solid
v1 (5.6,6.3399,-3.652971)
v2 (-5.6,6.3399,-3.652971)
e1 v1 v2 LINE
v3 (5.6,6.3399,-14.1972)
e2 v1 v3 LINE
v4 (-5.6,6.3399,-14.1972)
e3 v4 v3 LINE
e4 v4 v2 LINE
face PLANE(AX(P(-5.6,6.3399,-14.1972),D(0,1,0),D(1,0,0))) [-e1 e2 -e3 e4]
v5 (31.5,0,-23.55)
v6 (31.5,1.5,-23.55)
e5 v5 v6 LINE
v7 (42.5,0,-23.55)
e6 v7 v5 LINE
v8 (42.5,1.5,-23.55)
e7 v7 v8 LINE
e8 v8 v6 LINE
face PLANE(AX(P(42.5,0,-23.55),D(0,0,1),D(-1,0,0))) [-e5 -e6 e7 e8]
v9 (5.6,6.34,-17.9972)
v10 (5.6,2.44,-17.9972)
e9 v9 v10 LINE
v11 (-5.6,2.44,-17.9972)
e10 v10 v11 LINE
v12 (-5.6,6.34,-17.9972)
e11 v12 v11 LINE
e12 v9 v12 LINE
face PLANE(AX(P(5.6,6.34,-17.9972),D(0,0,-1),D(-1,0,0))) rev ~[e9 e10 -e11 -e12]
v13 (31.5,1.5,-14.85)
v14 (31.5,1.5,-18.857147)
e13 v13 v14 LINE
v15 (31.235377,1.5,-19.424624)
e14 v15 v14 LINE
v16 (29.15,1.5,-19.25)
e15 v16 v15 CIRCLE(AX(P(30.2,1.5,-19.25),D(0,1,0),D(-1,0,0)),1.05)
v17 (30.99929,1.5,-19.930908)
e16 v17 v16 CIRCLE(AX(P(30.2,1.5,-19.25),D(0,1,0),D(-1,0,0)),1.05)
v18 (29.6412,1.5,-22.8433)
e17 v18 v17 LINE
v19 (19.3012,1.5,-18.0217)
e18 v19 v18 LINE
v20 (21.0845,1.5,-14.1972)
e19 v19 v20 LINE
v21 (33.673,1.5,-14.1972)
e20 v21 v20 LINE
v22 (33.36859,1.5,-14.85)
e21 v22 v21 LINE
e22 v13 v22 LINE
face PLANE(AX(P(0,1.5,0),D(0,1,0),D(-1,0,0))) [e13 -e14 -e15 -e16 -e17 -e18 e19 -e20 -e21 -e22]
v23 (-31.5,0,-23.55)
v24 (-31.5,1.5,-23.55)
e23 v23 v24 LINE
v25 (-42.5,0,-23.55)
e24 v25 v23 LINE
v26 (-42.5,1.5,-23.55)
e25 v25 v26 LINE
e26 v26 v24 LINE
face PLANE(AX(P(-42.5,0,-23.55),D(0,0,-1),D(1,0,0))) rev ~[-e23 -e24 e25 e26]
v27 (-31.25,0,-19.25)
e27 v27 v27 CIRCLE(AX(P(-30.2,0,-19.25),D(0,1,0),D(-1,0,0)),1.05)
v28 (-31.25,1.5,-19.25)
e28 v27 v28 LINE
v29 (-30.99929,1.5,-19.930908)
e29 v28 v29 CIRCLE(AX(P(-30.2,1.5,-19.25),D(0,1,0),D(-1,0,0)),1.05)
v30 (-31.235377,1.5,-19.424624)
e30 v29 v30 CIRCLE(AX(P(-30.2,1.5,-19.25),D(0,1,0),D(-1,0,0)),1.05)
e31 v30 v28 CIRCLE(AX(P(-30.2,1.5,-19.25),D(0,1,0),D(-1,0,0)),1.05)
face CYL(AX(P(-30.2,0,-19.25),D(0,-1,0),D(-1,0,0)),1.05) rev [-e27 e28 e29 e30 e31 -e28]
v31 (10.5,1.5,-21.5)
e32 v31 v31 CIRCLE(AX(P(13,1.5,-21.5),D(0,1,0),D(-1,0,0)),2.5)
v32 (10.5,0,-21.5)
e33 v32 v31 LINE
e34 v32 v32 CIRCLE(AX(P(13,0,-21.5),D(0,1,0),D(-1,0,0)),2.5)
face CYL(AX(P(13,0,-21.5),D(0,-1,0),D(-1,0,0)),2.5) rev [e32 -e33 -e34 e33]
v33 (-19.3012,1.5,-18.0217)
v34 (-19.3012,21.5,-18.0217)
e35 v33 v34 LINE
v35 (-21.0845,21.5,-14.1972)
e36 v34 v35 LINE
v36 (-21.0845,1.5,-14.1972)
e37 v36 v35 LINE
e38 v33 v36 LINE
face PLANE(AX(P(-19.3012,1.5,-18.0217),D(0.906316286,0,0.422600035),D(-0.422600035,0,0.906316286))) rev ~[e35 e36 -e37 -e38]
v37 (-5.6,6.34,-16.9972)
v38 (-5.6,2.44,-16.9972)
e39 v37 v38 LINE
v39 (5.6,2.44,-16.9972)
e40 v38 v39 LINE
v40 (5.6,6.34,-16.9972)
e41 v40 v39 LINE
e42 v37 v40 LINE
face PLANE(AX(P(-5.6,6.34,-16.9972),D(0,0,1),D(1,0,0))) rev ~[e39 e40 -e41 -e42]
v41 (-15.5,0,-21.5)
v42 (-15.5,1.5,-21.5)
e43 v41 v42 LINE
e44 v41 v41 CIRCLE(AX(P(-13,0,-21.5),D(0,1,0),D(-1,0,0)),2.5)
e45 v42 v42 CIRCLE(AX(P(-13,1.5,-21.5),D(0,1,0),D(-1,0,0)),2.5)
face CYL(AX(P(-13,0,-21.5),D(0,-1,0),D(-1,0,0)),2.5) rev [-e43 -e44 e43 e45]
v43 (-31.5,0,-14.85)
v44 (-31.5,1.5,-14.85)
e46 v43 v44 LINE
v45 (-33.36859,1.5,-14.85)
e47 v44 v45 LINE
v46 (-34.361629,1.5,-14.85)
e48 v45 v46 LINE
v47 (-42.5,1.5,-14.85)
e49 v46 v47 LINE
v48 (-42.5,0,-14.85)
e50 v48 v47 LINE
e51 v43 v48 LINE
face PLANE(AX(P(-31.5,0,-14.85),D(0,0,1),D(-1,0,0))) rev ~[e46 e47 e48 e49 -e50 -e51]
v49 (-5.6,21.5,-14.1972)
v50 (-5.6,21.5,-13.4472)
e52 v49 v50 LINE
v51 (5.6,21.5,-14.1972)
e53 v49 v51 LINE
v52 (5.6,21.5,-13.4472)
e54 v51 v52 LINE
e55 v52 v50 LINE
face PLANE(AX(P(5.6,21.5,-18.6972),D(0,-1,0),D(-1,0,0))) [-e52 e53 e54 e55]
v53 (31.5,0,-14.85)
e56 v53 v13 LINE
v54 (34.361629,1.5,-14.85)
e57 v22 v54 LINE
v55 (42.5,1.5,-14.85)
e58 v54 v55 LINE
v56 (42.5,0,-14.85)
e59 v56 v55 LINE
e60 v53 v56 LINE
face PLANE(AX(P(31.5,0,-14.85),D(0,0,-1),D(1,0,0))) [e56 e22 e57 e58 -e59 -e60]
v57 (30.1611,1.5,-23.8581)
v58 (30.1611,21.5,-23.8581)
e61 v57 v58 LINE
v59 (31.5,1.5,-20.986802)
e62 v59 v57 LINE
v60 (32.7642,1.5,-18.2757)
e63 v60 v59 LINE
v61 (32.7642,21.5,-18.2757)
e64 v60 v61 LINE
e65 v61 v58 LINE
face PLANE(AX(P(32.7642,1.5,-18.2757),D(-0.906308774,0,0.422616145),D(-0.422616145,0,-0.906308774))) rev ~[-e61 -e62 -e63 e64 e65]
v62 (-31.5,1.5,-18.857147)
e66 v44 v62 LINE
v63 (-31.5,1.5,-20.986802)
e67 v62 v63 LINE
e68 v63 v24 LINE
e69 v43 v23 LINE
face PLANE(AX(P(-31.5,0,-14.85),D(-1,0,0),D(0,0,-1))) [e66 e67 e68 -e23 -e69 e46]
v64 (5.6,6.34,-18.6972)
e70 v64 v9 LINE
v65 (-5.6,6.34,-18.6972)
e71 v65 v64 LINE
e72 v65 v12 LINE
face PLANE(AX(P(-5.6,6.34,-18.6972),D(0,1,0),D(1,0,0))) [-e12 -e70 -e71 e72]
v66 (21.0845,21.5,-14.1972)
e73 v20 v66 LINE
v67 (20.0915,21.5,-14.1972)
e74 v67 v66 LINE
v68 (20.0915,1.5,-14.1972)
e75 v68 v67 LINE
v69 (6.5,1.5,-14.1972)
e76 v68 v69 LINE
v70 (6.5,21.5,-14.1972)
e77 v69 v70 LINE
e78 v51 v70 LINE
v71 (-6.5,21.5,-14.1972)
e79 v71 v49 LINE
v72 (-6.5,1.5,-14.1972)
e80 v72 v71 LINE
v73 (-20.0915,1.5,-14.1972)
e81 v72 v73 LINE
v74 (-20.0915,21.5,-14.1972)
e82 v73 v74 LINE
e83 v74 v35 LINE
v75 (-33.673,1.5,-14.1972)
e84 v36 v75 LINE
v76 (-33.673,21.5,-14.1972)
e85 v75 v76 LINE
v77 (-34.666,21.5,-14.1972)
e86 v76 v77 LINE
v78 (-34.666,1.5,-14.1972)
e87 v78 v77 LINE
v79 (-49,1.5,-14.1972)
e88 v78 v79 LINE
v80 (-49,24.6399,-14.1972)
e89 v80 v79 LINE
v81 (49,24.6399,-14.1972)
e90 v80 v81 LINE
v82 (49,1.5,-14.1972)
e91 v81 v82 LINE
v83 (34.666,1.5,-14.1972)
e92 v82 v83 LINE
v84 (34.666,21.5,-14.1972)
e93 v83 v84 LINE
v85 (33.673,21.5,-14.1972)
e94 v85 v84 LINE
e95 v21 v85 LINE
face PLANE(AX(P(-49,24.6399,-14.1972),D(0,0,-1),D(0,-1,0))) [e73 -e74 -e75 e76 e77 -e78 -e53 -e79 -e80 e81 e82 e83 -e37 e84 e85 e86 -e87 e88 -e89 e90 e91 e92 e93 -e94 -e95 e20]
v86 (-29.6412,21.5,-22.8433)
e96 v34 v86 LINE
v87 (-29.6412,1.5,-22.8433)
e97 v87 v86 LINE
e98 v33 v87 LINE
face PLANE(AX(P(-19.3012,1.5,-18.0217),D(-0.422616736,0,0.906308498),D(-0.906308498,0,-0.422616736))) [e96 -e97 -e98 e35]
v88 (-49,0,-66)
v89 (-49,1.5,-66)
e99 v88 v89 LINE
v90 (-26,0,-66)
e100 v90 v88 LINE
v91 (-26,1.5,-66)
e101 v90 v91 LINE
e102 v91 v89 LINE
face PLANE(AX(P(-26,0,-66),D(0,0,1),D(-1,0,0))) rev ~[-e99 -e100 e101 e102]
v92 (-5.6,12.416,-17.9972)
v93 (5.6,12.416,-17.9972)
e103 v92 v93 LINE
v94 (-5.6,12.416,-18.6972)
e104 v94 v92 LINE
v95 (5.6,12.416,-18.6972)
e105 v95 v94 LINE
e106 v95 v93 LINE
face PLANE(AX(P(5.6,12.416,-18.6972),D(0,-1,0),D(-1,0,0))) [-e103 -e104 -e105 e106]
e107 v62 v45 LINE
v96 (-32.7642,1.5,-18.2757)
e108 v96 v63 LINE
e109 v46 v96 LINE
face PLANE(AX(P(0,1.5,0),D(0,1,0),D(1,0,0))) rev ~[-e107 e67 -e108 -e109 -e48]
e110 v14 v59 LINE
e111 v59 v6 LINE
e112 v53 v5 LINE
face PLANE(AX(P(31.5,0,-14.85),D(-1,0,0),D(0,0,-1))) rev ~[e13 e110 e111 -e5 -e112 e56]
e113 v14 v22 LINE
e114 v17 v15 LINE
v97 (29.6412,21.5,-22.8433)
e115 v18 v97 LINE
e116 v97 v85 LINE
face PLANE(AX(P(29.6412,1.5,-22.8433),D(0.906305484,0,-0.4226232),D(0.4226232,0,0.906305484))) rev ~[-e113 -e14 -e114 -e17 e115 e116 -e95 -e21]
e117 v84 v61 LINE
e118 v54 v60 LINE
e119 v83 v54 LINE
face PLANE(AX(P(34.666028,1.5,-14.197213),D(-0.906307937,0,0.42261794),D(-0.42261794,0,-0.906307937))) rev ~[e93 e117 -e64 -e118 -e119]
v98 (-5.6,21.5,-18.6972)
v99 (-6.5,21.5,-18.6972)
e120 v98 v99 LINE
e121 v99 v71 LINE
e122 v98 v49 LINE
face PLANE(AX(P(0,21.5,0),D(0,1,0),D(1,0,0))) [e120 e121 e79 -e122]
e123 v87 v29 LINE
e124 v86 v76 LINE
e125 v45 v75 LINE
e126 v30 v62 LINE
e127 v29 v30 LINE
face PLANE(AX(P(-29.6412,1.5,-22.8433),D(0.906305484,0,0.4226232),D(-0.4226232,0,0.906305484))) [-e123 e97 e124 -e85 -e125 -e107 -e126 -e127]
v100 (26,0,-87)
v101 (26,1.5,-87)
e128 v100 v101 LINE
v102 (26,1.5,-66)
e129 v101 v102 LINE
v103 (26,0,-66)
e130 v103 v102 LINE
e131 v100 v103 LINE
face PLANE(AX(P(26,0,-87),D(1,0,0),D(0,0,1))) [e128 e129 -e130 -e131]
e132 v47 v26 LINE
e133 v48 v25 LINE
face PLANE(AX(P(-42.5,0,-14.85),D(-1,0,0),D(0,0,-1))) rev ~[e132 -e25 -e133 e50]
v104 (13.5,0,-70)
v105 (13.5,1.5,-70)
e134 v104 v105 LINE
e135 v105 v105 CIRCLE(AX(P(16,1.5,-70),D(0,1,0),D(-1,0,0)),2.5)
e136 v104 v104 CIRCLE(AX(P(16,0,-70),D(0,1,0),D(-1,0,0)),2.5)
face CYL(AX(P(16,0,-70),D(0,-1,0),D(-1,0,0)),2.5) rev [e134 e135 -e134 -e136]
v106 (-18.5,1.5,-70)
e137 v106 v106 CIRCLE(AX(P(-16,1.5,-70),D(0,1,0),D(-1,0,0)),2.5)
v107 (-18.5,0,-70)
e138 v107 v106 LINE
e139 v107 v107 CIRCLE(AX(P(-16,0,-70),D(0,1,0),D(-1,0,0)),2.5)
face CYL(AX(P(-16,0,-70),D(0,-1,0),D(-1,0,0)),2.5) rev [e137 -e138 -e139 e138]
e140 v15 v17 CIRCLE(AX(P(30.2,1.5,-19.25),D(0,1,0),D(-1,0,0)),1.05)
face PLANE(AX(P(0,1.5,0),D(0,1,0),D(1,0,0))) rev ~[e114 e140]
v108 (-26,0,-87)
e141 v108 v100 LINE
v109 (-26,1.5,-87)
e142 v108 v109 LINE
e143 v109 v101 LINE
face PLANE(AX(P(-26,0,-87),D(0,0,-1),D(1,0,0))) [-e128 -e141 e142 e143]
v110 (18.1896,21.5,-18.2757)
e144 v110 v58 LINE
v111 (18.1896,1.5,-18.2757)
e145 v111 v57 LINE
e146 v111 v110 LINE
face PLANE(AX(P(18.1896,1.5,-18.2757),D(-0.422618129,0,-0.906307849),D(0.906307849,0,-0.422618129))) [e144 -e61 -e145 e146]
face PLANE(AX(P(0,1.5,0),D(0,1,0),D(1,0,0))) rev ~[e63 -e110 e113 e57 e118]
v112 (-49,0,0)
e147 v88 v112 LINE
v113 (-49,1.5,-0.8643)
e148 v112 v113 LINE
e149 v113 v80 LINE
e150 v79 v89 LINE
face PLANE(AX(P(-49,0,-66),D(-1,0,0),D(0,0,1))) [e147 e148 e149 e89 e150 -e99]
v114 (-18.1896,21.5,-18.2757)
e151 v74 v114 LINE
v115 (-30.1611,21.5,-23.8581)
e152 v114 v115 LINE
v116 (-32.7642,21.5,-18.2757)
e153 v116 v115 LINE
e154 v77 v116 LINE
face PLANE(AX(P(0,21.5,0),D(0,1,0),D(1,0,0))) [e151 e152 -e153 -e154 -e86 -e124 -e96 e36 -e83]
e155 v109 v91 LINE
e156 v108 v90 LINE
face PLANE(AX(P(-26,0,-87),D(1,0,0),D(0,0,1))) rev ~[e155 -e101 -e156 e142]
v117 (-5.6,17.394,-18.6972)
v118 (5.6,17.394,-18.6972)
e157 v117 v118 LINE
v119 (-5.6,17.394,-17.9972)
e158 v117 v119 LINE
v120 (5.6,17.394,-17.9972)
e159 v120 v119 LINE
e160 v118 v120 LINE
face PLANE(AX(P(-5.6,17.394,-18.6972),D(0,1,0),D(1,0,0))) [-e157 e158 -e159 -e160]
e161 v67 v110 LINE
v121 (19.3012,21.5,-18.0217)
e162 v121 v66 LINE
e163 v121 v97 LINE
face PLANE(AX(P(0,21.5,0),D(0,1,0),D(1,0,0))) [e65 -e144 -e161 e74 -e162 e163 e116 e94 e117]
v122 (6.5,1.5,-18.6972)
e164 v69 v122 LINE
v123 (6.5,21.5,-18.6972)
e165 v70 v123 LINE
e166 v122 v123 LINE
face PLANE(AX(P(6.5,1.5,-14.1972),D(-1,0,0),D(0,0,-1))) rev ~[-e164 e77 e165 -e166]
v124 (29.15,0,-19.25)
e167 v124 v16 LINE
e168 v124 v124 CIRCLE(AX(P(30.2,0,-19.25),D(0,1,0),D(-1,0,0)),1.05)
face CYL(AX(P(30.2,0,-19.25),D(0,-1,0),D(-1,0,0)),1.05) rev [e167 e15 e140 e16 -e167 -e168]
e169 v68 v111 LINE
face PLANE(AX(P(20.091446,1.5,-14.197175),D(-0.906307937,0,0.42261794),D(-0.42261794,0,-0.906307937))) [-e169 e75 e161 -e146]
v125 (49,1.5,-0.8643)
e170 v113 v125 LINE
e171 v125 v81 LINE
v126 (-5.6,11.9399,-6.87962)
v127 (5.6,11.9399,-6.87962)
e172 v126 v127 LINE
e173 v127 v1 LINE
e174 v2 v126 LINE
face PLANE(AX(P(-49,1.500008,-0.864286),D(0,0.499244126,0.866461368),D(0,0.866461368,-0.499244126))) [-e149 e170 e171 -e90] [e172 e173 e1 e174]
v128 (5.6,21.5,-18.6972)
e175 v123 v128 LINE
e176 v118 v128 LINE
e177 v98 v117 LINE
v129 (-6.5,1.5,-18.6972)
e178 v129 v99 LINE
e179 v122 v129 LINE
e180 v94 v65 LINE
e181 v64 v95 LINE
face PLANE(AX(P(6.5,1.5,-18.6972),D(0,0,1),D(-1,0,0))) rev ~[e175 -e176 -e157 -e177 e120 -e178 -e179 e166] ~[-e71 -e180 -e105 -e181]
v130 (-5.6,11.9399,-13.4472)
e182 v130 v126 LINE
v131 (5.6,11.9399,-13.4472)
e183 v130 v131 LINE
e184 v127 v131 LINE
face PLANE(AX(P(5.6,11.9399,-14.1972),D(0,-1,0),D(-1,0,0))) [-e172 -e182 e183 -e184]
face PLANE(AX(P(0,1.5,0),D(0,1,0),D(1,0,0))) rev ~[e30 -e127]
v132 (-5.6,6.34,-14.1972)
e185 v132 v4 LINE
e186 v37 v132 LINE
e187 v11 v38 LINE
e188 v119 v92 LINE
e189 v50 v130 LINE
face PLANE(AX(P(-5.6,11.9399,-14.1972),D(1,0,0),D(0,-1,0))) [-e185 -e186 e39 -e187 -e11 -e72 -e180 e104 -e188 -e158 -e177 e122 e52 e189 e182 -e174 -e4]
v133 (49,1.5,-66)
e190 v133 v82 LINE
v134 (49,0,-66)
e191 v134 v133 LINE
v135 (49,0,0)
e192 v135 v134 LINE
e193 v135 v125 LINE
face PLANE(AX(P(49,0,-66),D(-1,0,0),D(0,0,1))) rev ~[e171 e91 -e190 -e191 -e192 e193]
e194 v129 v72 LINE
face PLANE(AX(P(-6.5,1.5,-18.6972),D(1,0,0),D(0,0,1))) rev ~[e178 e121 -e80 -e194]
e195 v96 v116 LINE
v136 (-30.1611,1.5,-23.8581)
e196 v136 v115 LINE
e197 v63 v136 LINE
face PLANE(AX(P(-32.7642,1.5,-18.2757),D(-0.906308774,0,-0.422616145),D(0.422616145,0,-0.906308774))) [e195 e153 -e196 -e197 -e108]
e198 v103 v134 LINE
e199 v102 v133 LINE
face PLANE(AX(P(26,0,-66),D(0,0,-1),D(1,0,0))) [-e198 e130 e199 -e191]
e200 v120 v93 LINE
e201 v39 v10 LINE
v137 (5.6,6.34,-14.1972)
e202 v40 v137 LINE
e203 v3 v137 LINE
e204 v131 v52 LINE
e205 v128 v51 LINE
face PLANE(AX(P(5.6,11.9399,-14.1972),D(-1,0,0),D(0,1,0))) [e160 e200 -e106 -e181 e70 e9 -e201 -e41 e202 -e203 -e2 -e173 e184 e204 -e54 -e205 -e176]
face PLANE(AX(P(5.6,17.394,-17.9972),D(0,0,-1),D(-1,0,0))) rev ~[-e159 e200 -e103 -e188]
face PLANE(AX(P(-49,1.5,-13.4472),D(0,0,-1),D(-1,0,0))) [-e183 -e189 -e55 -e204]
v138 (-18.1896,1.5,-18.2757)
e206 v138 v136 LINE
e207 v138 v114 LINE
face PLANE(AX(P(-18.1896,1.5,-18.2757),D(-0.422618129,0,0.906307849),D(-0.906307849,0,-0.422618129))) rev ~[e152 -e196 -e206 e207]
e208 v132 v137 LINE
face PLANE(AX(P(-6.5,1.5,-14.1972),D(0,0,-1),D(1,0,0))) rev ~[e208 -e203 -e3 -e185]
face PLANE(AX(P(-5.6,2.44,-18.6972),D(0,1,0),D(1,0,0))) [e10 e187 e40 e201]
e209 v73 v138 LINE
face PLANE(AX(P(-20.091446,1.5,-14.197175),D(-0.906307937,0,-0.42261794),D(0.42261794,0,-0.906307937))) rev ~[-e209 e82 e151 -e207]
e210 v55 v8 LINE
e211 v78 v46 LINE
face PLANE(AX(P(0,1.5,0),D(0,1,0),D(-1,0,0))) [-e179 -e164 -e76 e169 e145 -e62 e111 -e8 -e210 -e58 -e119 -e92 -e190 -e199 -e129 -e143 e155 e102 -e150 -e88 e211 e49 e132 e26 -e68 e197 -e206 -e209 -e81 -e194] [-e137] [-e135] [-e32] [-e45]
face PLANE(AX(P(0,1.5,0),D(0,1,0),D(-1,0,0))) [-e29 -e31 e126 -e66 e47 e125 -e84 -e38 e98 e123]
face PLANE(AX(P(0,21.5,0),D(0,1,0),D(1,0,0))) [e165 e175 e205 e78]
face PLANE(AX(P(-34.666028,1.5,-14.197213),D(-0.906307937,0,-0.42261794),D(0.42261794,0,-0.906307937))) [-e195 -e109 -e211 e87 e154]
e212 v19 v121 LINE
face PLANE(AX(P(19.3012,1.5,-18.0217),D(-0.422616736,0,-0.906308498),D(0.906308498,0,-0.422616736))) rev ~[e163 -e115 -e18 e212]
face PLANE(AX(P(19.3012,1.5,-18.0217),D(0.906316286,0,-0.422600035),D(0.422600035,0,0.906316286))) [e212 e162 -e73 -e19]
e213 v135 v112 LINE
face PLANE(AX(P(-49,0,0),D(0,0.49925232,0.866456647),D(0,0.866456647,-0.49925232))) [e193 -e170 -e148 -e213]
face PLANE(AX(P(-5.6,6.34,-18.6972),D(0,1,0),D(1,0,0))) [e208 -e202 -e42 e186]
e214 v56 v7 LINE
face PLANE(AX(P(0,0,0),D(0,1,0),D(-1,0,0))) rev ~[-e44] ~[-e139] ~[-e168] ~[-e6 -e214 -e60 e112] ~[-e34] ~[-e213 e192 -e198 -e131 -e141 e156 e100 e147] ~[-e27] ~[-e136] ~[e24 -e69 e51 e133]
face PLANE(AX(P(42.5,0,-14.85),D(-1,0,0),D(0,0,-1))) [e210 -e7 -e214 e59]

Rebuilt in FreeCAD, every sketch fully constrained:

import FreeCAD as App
import Part
import Sketcher

V = App.Vector
Q = App.Units.Quantity


def add_polygon(sketch, points):
    """Adds a closed chain of lines whose ends are joined by coincident constraints."""
    first, n = sketch.GeometryCount, len(points)
    for a, b in zip(points, points[1:] + points[:1]):
        sketch.addGeometry(Part.LineSegment(App.Vector(*a, 0), App.Vector(*b, 0)), False)
    for i in range(n):
        sketch.addConstraint(Sketcher.Constraint("Coincident", first + i, 2, first + (i + 1) % n, 1))

doc = App.newDocument("Part")
body = doc.addObject("PartDesign::Body", "Body")

# Sketch on XZ plane
sketch1 = body.newObject("Sketcher::SketchObject", "Sketch")
sketch1.AttachmentSupport = (doc.getObject("XZ_Plane"), [""])
sketch1.MapMode = "FlatFace"
add_polygon(sketch1, [(-26, -87), (-26, -66), (-49, -66), (-49, 0), (49, 0), (49, -66), (26, -66), (26, -87)])  # lines 0-7
sketch1.addGeometry(Part.Circle(V(16, -70, 0), V(0, 0, 1), 2.5), False)  # 8
sketch1.addGeometry(Part.Circle(V(-16, -70, 0), V(0, 0, 1), 2.5), False)  # 9
add_polygon(sketch1, [(31.5, -23.6), (42.5, -23.6), (42.5, -14.8), (31.5, -14.8)])  # lines 10-13
sketch1.addGeometry(Part.Circle(V(30.2, -19.2, 0), V(0, 0, 1), 1.1), False)  # 14
sketch1.addGeometry(Part.Circle(V(41.5, -7.5, 0), V(0, 0, 1), 1.8), False)  # 15
sketch1.addGeometry(Part.Circle(V(13, -21.5, 0), V(0, 0, 1), 2.5), False)  # 16
sketch1.addGeometry(Part.Circle(V(-13, -21.5, 0), V(0, 0, 1), 2.5), False)  # 17
sketch1.addGeometry(Part.Circle(V(-41.5, -7.5, 0), V(0, 0, 1), 1.8), False)  # 18
add_polygon(sketch1, [(-42.5, -14.8), (-42.5, -23.6), (-31.5, -23.6), (-31.5, -14.8)])  # lines 19-22
sketch1.addGeometry(Part.Circle(V(-30.2, -19.2, 0), V(0, 0, 1), 1.1), False)  # 23
sketch1.addConstraint(Sketcher.Constraint("Vertical", 0))
sketch1.addConstraint(Sketcher.Constraint("Horizontal", 1))
sketch1.addConstraint(Sketcher.Constraint("Vertical", 2))
sketch1.addConstraint(Sketcher.Constraint("Horizontal", 3))
sketch1.addConstraint(Sketcher.Constraint("Vertical", 4))
sketch1.addConstraint(Sketcher.Constraint("Horizontal", 5))
sketch1.addConstraint(Sketcher.Constraint("Vertical", 6))
sketch1.addConstraint(Sketcher.Constraint("Horizontal", 7))
sketch1.addConstraint(Sketcher.Constraint("Horizontal", 10))
sketch1.addConstraint(Sketcher.Constraint("Vertical", 11))
sketch1.addConstraint(Sketcher.Constraint("Horizontal", 12))
sketch1.addConstraint(Sketcher.Constraint("Vertical", 13))
sketch1.addConstraint(Sketcher.Constraint("Vertical", 19))
sketch1.addConstraint(Sketcher.Constraint("Horizontal", 20))
sketch1.addConstraint(Sketcher.Constraint("Vertical", 21))
sketch1.addConstraint(Sketcher.Constraint("Horizontal", 22))
sketch1.addConstraint(Sketcher.Constraint("Equal", 8, 9))
sketch1.addConstraint(Sketcher.Constraint("Equal", 9, 16))
sketch1.addConstraint(Sketcher.Constraint("Equal", 16, 17))
sketch1.addConstraint(Sketcher.Constraint("Equal", 15, 18))
sketch1.addConstraint(Sketcher.Constraint("Equal", 14, 23))
sketch1.addConstraint(Sketcher.Constraint("Symmetric", 2, 2, 3, 2, -1, 1))
sketch1.addConstraint(Sketcher.Constraint("Symmetric", 8, 3, 9, 3, -2))
sketch1.addConstraint(Sketcher.Constraint("Symmetric", 16, 3, 17, 3, -2))
sketch1.addConstraint(Sketcher.Constraint("Symmetric", 15, 3, 18, 3, -2))
sketch1.addConstraint(Sketcher.Constraint("Symmetric", 14, 3, 23, 3, -2))
sketch1.addConstraint(Sketcher.Constraint("Symmetric", 0, 2, 5, 2, -2))
sketch1.addConstraint(Sketcher.Constraint("Symmetric", 10, 2, 19, 2, -2))
sketch1.addConstraint(Sketcher.Constraint("Symmetric", 12, 2, 21, 2, -2))
sketch1.addConstraint(Sketcher.Constraint("Diameter", 8, Q("5 mm")))
sketch1.addConstraint(Sketcher.Constraint("Diameter", 14, Q("2.1 mm")))
sketch1.addConstraint(Sketcher.Constraint("Diameter", 15, Q("3.5 mm")))
sketch1.addConstraint(Sketcher.Constraint("DistanceX", 1, 2, 1, 1, Q("23 mm")))
sketch1.addConstraint(Sketcher.Constraint("DistanceX", 3, 1, 3, 2, Q("98 mm")))
sketch1.addConstraint(Sketcher.Constraint("DistanceX", 10, 1, 10, 2, Q("11 mm")))
sketch1.addConstraint(Sketcher.Constraint("DistanceY", 0, 1, 0, 2, Q("21 mm")))
sketch1.addConstraint(Sketcher.Constraint("DistanceY", 11, 1, 11, 2, Q("8.7 mm")))
sketch1.addConstraint(Sketcher.Constraint("DistanceX", -1, 1, 8, 3, Q("16 mm")))
sketch1.addConstraint(Sketcher.Constraint("DistanceY", 6, 2, -1, 1, Q("87 mm")))
sketch1.addConstraint(Sketcher.Constraint("DistanceY", 9, 3, 0, 2, Q("4 mm")))
sketch1.addConstraint(Sketcher.Constraint("DistanceX", 1, 2, 17, 3, Q("36 mm")))
sketch1.addConstraint(Sketcher.Constraint("DistanceX", 15, 3, 10, 2, Q("1 mm")))
sketch1.addConstraint(Sketcher.Constraint("DistanceY", 15, 3, -1, 1, Q("7.5 mm")))
sketch1.addConstraint(Sketcher.Constraint("DistanceX", 1, 2, 18, 3, Q("7.5 mm")))
sketch1.addConstraint(Sketcher.Constraint("DistanceY", 10, 2, 14, 3, Q("4.3 mm")))
sketch1.addConstraint(Sketcher.Constraint("DistanceX", 14, 3, 12, 2, Q("1.3 mm")))
sketch1.addConstraint(Sketcher.Constraint("DistanceY", 16, 3, 15, 3, Q("14 mm")))
sketch1.addConstraint(Sketcher.Constraint("DistanceY", 14, 3, -1, 1, Q("19.25 mm")))
pad1 = body.newObject("PartDesign::Pad", "Pad")
pad1.Profile = sketch1
pad1.Length = 1.5
pad1.Reversed = True

# Sketch on YZ plane
sketch2 = body.newObject("Sketcher::SketchObject", "Sketch001")
sketch2.AttachmentSupport = (doc.getObject("YZ_Plane"), [""])
sketch2.MapMode = "FlatFace"
sketch2.AttachmentOffset = App.Placement(V(0, 0, -49), App.Rotation())
add_polygon(sketch2, [(1.5, -0.9), (0, 0), (1.5, 0)])  # lines 0-2
sketch2.addConstraint(Sketcher.Constraint("Horizontal", 1))
sketch2.addConstraint(Sketcher.Constraint("Vertical", 2))
sketch2.addConstraint(Sketcher.Constraint("Coincident", 0, 2, -1, 1))
sketch2.addConstraint(Sketcher.Constraint("DistanceX", 1, 1, 1, 2, Q("1.5 mm")))
sketch2.addConstraint(Sketcher.Constraint("Angle", 0, Q("150.0495 deg")))
pocket1 = body.newObject("PartDesign::Pocket", "Pocket")
pocket1.Profile = sketch2
pocket1.Length = 98
pocket1.Reversed = True

# Sketch on YZ plane
sketch3 = body.newObject("Sketcher::SketchObject", "Sketch002")
sketch3.AttachmentSupport = (doc.getObject("YZ_Plane"), [""])
sketch3.MapMode = "FlatFace"
sketch3.AttachmentOffset = App.Placement(V(0, 0, -49), App.Rotation())
add_polygon(sketch3, [(25, -14), (0, -14), (0, 0)])  # lines 0-2
sketch3.addConstraint(Sketcher.Constraint("Horizontal", 0))
sketch3.addConstraint(Sketcher.Constraint("Vertical", 1))
sketch3.addConstraint(Sketcher.Constraint("Coincident", 1, 2, -1, 1))
sketch3.addConstraint(Sketcher.Constraint("DistanceX", 0, 2, 0, 1, Q("24.64 mm")))
sketch3.addConstraint(Sketcher.Constraint("Angle", 2, Q("-29.95 deg")))
pad2 = body.newObject("PartDesign::Pad", "Pad001")
pad2.Profile = sketch3
pad2.Length = 98

# Sketch on XY plane
sketch4 = body.newObject("Sketcher::SketchObject", "Sketch003")
sketch4.AttachmentSupport = (doc.getObject("XY_Plane"), [""])
sketch4.MapMode = "FlatFace"
sketch4.AttachmentOffset = App.Placement(V(0, 0, -14.1972), App.Rotation())
add_polygon(sketch4, [(-6, 12), (6, 12), (6, 6), (-6, 6)])  # lines 0-3
sketch4.addConstraint(Sketcher.Constraint("Horizontal", 0))
sketch4.addConstraint(Sketcher.Constraint("Vertical", 1))
sketch4.addConstraint(Sketcher.Constraint("Horizontal", 2))
sketch4.addConstraint(Sketcher.Constraint("Vertical", 3))
sketch4.addConstraint(Sketcher.Constraint("DistanceY", 1, 2, 1, 1, Q("5.6 mm")))
sketch4.addConstraint(Sketcher.Constraint("DistanceX", -1, 1, 0, 2, Q("5.6 mm")))
sketch4.addConstraint(Sketcher.Constraint("DistanceX", 2, 2, -1, 1, Q("5.6 mm")))
sketch4.addConstraint(Sketcher.Constraint("DistanceY", -1, 1, 0, 2, Q("11.94 mm")))
pocket2 = body.newObject("PartDesign::Pocket", "Pocket001")
pocket2.Profile = sketch4
pocket2.Length = 76.25
pocket2.Midplane = True

# Sketch on XY plane
sketch5 = body.newObject("Sketcher::SketchObject", "Sketch004")
sketch5.AttachmentSupport = (doc.getObject("XY_Plane"), [""])
sketch5.MapMode = "FlatFace"
sketch5.AttachmentOffset = App.Placement(V(0, 0, -14.1972), App.Rotation())
add_polygon(sketch5, [(-6, 21), (6, 21), (6, 6), (-6, 6)])  # lines 0-3
sketch5.addConstraint(Sketcher.Constraint("Horizontal", 0))
sketch5.addConstraint(Sketcher.Constraint("Vertical", 1))
sketch5.addConstraint(Sketcher.Constraint("Horizontal", 2))
sketch5.addConstraint(Sketcher.Constraint("Vertical", 3))
sketch5.addConstraint(Sketcher.Constraint("DistanceX", 0, 1, 0, 2, Q("11.2 mm")))
sketch5.addConstraint(Sketcher.Constraint("DistanceY", 1, 2, 1, 1, Q("14.8 mm")))
sketch5.addConstraint(Sketcher.Constraint("DistanceX", -1, 1, 0, 2, Q("5.6 mm")))
sketch5.addConstraint(Sketcher.Constraint("DistanceY", -1, 1, 0, 2, Q("21.14 mm")))
pocket3 = body.newObject("PartDesign::Pocket", "Pocket002")
pocket3.Profile = sketch5
pocket3.Length = 1.5
pocket3.Midplane = True

# Sketch on XZ plane
sketch6 = body.newObject("Sketcher::SketchObject", "Sketch005")
sketch6.AttachmentSupport = (doc.getObject("XZ_Plane"), [""])
sketch6.MapMode = "FlatFace"
sketch6.AttachmentOffset = App.Placement(V(0, 0, -1.5), App.Rotation())
add_polygon(sketch6, [(-6.5, -14.2), (6.5, -14.2), (6.5, -18.7), (-6.5, -18.7)])  # lines 0-3
sketch6.addConstraint(Sketcher.Constraint("Horizontal", 0))
sketch6.addConstraint(Sketcher.Constraint("Vertical", 1))
sketch6.addConstraint(Sketcher.Constraint("Horizontal", 2))
sketch6.addConstraint(Sketcher.Constraint("Vertical", 3))
sketch6.addConstraint(Sketcher.Constraint("DistanceX", 0, 1, 0, 2, Q("13 mm")))
sketch6.addConstraint(Sketcher.Constraint("DistanceY", 1, 2, 1, 1, Q("4.5 mm")))
sketch6.addConstraint(Sketcher.Constraint("DistanceX", -1, 1, 0, 2, Q("6.5 mm")))
sketch6.addConstraint(Sketcher.Constraint("DistanceY", 0, 2, -1, 1, Q("14.1972 mm")))
pad3 = body.newObject("PartDesign::Pad", "Pad002")
pad3.Profile = sketch6
pad3.Length = 20
pad3.Reversed = True

# Sketch on XY plane
sketch7 = body.newObject("Sketcher::SketchObject", "Sketch006")
sketch7.AttachmentSupport = (doc.getObject("XY_Plane"), [""])
sketch7.MapMode = "FlatFace"
sketch7.AttachmentOffset = App.Placement(V(0, 0, -18.6972), App.Rotation())
add_polygon(sketch7, [(-5.6, 12.4), (5.6, 12.4), (5.6, 6.3), (-5.6, 6.3)])  # lines 0-3
add_polygon(sketch7, [(-5.6, 21.5), (5.6, 21.5), (5.6, 17.4), (-5.6, 17.4)])  # lines 4-7
sketch7.addConstraint(Sketcher.Constraint("Horizontal", 0))
sketch7.addConstraint(Sketcher.Constraint("Vertical", 1))
sketch7.addConstraint(Sketcher.Constraint("Horizontal", 2))
sketch7.addConstraint(Sketcher.Constraint("Vertical", 3))
sketch7.addConstraint(Sketcher.Constraint("Horizontal", 4))
sketch7.addConstraint(Sketcher.Constraint("Vertical", 5))
sketch7.addConstraint(Sketcher.Constraint("Horizontal", 6))
sketch7.addConstraint(Sketcher.Constraint("Vertical", 7))
sketch7.addConstraint(Sketcher.Constraint("Vertical", 1, 2, 4, 2))
sketch7.addConstraint(Sketcher.Constraint("Vertical", 3, 2, 6, 2))
sketch7.addConstraint(Sketcher.Constraint("DistanceX", 0, 1, 0, 2, Q("11.2 mm")))
sketch7.addConstraint(Sketcher.Constraint("DistanceY", 1, 2, 1, 1, Q("6.076 mm")))
sketch7.addConstraint(Sketcher.Constraint("DistanceY", 0, 2, 5, 2, Q("4.978 mm")))
sketch7.addConstraint(Sketcher.Constraint("DistanceX", -1, 1, 0, 2, Q("5.6 mm")))
sketch7.addConstraint(Sketcher.Constraint("DistanceY", -1, 1, 4, 2, Q("21.5 mm")))
sketch7.addConstraint(Sketcher.Constraint("DistanceY", 5, 2, 5, 1, Q("4.106 mm")))
pocket4 = body.newObject("PartDesign::Pocket", "Pocket003")
pocket4.Profile = sketch7
pocket4.Length = 5.25
pocket4.Reversed = True

# Sketch on XZ plane
sketch8 = body.newObject("Sketcher::SketchObject", "Sketch007")
sketch8.AttachmentSupport = (doc.getObject("XZ_Plane"), [""])
sketch8.MapMode = "FlatFace"
sketch8.AttachmentOffset = App.Placement(V(0, 0, -17.394), App.Rotation())
add_polygon(sketch8, [(5.6, -18), (-5.6, -18), (-5.6, -14.2), (5.6, -14.2)])  # lines 0-3
sketch8.addConstraint(Sketcher.Constraint("Horizontal", 0))
sketch8.addConstraint(Sketcher.Constraint("Vertical", 1))
sketch8.addConstraint(Sketcher.Constraint("Horizontal", 2))
sketch8.addConstraint(Sketcher.Constraint("Vertical", 3))
sketch8.addConstraint(Sketcher.Constraint("DistanceX", 0, 2, 0, 1, Q("11.2 mm")))
sketch8.addConstraint(Sketcher.Constraint("DistanceY", 1, 1, 1, 2, Q("3.8 mm")))
sketch8.addConstraint(Sketcher.Constraint("DistanceX", 0, 2, -1, 1, Q("5.6 mm")))
sketch8.addConstraint(Sketcher.Constraint("DistanceY", 0, 2, -1, 1, Q("17.9972 mm")))
pocket5 = body.newObject("PartDesign::Pocket", "Pocket004")
pocket5.Profile = sketch8
pocket5.Length = 10.054
pocket5.Reversed = True

# Sketch on XZ plane
sketch9 = body.newObject("Sketcher::SketchObject", "Sketch008")
sketch9.AttachmentSupport = (doc.getObject("XZ_Plane"), [""])
sketch9.MapMode = "FlatFace"
sketch9.AttachmentOffset = App.Placement(V(0, 0, -6.34), App.Rotation())
add_polygon(sketch9, [(5.6, -18), (-5.6, -18), (-5.6, -17), (5.6, -17)])  # lines 0-3
sketch9.addConstraint(Sketcher.Constraint("Horizontal", 0))
sketch9.addConstraint(Sketcher.Constraint("Vertical", 1))
sketch9.addConstraint(Sketcher.Constraint("Horizontal", 2))
sketch9.addConstraint(Sketcher.Constraint("Vertical", 3))
sketch9.addConstraint(Sketcher.Constraint("DistanceY", 1, 1, 1, 2, Q("1 mm")))
sketch9.addConstraint(Sketcher.Constraint("DistanceX", 0, 2, 0, 1, Q("11.2 mm")))
sketch9.addConstraint(Sketcher.Constraint("DistanceX", 0, 2, -1, 1, Q("5.6 mm")))
sketch9.addConstraint(Sketcher.Constraint("DistanceY", 0, 2, -1, 1, Q("17.9972 mm")))
pocket6 = body.newObject("PartDesign::Pocket", "Pocket005")
pocket6.Profile = sketch9
pocket6.Length = 3.9
pocket6.Reversed = True

# Sketch on XZ plane
sketch10 = body.newObject("Sketcher::SketchObject", "Sketch009")
sketch10.AttachmentSupport = (doc.getObject("XZ_Plane"), [""])
sketch10.MapMode = "FlatFace"
sketch10.AttachmentOffset = App.Placement(V(0, 0, -1.5), App.Rotation())
add_polygon(sketch10, [(18.2, -18.3), (20.1, -14.2), (21.1, -14.2), (19.3, -18), (29.6, -22.8), (33.7, -14.2), (34.7, -14.2), (32.8, -18.3), (30.2, -23.9)])  # lines 0-8
add_polygon(sketch10, [(-21.1, -14.2), (-20.1, -14.2), (-18.2, -18.3), (-30.2, -23.9), (-32.8, -18.3), (-34.7, -14.2), (-33.7, -14.2), (-29.6, -22.8), (-19.3, -18)])  # lines 9-17
sketch10.addConstraint(Sketcher.Constraint("Horizontal", 1))
sketch10.addConstraint(Sketcher.Constraint("Horizontal", 5))
sketch10.addConstraint(Sketcher.Constraint("Horizontal", 9))
sketch10.addConstraint(Sketcher.Constraint("Horizontal", 14))
sketch10.addConstraint(Sketcher.Constraint("Symmetric", 0, 2, 9, 2, -2))
sketch10.addConstraint(Sketcher.Constraint("Symmetric", 8, 2, 10, 2, -2))
sketch10.addConstraint(Sketcher.Constraint("Symmetric", 7, 2, 11, 2, -2))
sketch10.addConstraint(Sketcher.Constraint("Symmetric", 6, 2, 12, 2, -2))
sketch10.addConstraint(Sketcher.Constraint("Symmetric", 5, 2, 13, 2, -2))
sketch10.addConstraint(Sketcher.Constraint("Symmetric", 3, 2, 15, 2, -2))
sketch10.addConstraint(Sketcher.Constraint("Symmetric", 2, 2, 16, 2, -2))
sketch10.addConstraint(Sketcher.Constraint("Parallel", 0, 2))
sketch10.addConstraint(Sketcher.Constraint("Perpendicular", 2, 3))
sketch10.addConstraint(Sketcher.Constraint("Perpendicular", 3, 4))
sketch10.addConstraint(Sketcher.Constraint("Parallel", 4, 6))
sketch10.addConstraint(Sketcher.Constraint("Parallel", 6, 7))
sketch10.addConstraint(Sketcher.Constraint("Perpendicular", 7, 8))
sketch10.addConstraint(Sketcher.Constraint("Parallel", 13, 15))
sketch10.addConstraint(Sketcher.Constraint("Perpendicular", 16, 17))
sketch10.addConstraint(Sketcher.Constraint("Horizontal", 1, 2, 4, 2))
sketch10.addConstraint(Sketcher.Constraint("Horizontal", 6, 2, 8, 2))
sketch10.addConstraint(Sketcher.Constraint("Equal", 1, 5))
sketch10.addConstraint(Sketcher.Constraint("Angle", 3, Q("-25 deg")))
sketch10.addConstraint(Sketcher.Constraint("Distance", 6, Q("4.5 mm")))
sketch10.addConstraint(Sketcher.Constraint("Distance", 4, Q("9.54 mm")))
sketch10.addConstraint(Sketcher.Constraint("DistanceX", 1, 1, 1, 2, Q("0.993 mm")))
sketch10.addConstraint(Sketcher.Constraint("DistanceX", 2, 2, 3, 2, Q("10.34 mm")))
sketch10.addConstraint(Sketcher.Constraint("DistanceX", -1, 1, 4, 2, Q("33.673 mm")))
sketch10.addConstraint(Sketcher.Constraint("DistanceY", 7, 2, -1, 1, Q("23.858 mm")))
pad4 = body.newObject("PartDesign::Pad", "Pad003")
pad4.Profile = sketch10
pad4.Length = 20
pad4.Reversed = True

doc.recompute()
